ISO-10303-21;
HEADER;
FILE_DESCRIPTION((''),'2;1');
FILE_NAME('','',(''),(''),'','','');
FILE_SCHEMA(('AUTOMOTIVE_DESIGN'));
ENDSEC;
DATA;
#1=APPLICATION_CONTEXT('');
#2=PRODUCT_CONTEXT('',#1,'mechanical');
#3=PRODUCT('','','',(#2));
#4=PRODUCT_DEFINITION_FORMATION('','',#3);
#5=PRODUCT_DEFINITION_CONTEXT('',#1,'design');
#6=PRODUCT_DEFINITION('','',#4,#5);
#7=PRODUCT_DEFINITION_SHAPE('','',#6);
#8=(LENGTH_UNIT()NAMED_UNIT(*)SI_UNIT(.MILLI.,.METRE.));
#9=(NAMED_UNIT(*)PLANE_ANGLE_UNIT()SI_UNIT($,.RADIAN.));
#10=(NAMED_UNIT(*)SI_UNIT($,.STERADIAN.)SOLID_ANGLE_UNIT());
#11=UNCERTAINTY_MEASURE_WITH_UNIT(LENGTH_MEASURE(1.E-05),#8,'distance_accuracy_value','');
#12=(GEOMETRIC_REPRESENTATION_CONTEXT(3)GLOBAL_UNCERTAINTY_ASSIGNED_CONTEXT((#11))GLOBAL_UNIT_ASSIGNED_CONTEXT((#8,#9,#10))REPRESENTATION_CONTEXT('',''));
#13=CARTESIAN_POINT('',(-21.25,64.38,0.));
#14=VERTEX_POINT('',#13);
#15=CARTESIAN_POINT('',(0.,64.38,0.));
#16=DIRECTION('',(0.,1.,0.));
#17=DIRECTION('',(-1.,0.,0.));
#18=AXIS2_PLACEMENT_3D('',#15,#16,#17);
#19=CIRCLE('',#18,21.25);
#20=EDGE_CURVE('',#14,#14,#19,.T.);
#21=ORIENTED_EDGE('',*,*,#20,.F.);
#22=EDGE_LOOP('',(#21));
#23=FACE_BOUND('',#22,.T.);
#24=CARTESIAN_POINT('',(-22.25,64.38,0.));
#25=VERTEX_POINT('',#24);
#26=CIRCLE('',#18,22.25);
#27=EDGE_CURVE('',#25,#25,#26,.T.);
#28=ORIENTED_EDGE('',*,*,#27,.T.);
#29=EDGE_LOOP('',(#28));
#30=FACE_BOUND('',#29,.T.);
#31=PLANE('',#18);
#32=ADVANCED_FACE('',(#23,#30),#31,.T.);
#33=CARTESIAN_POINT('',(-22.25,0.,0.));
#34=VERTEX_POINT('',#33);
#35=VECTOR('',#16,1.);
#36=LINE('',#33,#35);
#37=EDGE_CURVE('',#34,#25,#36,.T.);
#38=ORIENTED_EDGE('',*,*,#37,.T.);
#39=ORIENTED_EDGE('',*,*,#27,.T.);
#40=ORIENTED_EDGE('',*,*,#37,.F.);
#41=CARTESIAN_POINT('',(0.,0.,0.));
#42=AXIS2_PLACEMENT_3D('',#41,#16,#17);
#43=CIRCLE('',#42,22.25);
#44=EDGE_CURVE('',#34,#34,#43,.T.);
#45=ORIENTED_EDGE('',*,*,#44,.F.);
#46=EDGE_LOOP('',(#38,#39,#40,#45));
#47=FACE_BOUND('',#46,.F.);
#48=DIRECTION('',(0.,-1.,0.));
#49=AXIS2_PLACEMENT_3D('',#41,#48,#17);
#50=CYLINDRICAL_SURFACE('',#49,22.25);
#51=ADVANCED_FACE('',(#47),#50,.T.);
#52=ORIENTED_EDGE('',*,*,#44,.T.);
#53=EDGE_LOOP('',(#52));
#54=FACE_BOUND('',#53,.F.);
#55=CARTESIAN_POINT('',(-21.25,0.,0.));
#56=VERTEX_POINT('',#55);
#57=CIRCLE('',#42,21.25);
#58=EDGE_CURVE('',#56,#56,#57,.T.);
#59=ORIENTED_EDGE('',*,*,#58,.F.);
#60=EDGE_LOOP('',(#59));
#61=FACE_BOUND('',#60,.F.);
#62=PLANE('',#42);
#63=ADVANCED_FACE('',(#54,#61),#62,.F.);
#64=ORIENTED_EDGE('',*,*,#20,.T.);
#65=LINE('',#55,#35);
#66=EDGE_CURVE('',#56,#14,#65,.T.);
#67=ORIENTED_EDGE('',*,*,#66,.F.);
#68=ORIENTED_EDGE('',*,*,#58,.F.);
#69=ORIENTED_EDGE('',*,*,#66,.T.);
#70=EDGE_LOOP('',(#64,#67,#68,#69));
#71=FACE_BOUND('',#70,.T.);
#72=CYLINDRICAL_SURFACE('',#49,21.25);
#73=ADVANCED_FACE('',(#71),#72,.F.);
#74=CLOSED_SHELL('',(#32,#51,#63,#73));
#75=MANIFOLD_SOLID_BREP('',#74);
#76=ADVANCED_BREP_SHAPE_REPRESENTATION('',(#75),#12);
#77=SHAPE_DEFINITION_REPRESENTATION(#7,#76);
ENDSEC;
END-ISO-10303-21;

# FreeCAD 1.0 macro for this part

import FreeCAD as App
import Part
import Sketcher

doc = App.newDocument("Part")
body = doc.addObject("PartDesign::Body", "Body")

# Sketch on XZ plane
sketch1 = body.newObject("Sketcher::SketchObject", "Sketch")
sketch1.AttachmentSupport = (doc.getObject("XZ_Plane"), [""])
sketch1.MapMode = "FlatFace"
sketch1.addGeometry(Part.Circle(App.Vector(0, 0, 0), App.Vector(0, 0, 1), 22), False)
sketch1.addGeometry(Part.Circle(App.Vector(0, 0, 0), App.Vector(0, 0, 1), 21), False)
sketch1.addConstraint(Sketcher.Constraint("Coincident", 0, 3, -1, 1))
sketch1.addConstraint(Sketcher.Constraint("Coincident", 1, 3, -1, 1))
sketch1.addConstraint(Sketcher.Constraint("Diameter", 0, 44.5))
sketch1.addConstraint(Sketcher.Constraint("Diameter", 1, 42.5))
pad1 = body.newObject("PartDesign::Pad", "Pad")
pad1.Profile = sketch1
pad1.Length = 64.38
pad1.Reversed = True

doc.recompute()
